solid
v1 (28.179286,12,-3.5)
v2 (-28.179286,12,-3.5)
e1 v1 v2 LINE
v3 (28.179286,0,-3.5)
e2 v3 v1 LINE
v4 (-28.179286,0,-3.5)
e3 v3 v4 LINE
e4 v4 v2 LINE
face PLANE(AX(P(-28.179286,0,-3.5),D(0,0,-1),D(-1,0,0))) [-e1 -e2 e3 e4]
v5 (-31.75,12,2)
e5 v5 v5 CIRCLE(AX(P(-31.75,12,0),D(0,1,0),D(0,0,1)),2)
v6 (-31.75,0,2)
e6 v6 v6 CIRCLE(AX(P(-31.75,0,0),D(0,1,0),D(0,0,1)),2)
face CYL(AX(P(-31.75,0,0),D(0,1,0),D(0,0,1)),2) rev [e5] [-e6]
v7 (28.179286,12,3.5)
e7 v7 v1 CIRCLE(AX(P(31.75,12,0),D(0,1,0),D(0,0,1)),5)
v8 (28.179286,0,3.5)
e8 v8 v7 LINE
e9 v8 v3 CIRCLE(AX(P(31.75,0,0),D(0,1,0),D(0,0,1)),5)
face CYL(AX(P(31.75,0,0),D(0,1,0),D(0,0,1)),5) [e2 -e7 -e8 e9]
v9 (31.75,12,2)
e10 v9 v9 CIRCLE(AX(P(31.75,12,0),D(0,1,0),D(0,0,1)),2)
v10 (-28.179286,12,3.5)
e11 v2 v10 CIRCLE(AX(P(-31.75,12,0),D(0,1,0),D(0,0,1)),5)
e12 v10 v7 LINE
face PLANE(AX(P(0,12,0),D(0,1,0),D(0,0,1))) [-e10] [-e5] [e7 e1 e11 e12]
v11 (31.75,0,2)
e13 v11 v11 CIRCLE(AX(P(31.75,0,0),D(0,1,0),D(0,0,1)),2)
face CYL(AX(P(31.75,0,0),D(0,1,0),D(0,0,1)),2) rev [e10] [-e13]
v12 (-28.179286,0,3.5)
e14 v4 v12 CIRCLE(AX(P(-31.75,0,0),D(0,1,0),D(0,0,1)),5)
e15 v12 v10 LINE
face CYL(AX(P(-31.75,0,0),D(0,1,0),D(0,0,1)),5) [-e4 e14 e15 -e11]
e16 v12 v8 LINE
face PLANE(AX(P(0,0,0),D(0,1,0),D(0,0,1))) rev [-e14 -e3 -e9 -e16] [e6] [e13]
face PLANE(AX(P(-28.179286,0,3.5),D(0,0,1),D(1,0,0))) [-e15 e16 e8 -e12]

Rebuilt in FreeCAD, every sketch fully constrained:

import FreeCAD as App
import Part
import Sketcher
from FreeCAD import Vector
Q = App.Units.Quantity

doc = App.newDocument("Part")
body = doc.addObject("PartDesign::Body", "Body")

sketch1 = doc.addObject("Sketcher::SketchObject", "Sketch")
body.addObject(sketch1)
sketch1.AttachmentSupport = (doc.XZ_Plane, [""])
sketch1.MapMode = "FlatFace"
sketch1.addGeometry(Part.LineSegment(Vector(-28, -2, 0), Vector(-28, 2, 0)), False)
sketch1.addGeometry(Part.LineSegment(Vector(-28, 2, 0), Vector(28, 2, 0)), False)
sketch1.addGeometry(Part.LineSegment(Vector(28, 2, 0), Vector(28, -2, 0)), False)
sketch1.addGeometry(Part.LineSegment(Vector(28, -2, 0), Vector(-28, -2, 0)), False)
sketch1.addConstraint(Sketcher.Constraint("Coincident", 0, 2, 1, 1))
sketch1.addConstraint(Sketcher.Constraint("Coincident", 1, 2, 2, 1))
sketch1.addConstraint(Sketcher.Constraint("Coincident", 2, 2, 3, 1))
sketch1.addConstraint(Sketcher.Constraint("Coincident", 3, 2, 0, 1))
sketch1.addConstraint(Sketcher.Constraint("Vertical", 0))
sketch1.addConstraint(Sketcher.Constraint("Horizontal", 1))
sketch1.addConstraint(Sketcher.Constraint("Vertical", 2))
sketch1.addConstraint(Sketcher.Constraint("Horizontal", 3))
sketch1.addConstraint(Sketcher.Constraint("Symmetric", 0, 2, 2, 2, -1, 1))
sketch1.addConstraint(Sketcher.Constraint("DistanceX", 1, 1, 1, 2, Q("56 mm")))
sketch1.addConstraint(Sketcher.Constraint("DistanceY", 0, 1, 0, 2, Q("5 mm")))
pad1 = doc.addObject("PartDesign::Pad", "Pad")
body.addObject(pad1)
pad1.Profile = sketch1
pad1.Length = 12
pad1.Reversed = True

sketch2 = doc.addObject("Sketcher::SketchObject", "Sketch001")
body.addObject(sketch2)
sketch2.AttachmentSupport = (doc.XZ_Plane, [""])
sketch2.MapMode = "FlatFace"
sketch2.AttachmentOffset = App.Placement(Vector(0, 0, -12), App.Rotation())
sketch2.addGeometry(Part.Circle(Vector(31.8, 0, 0), Vector(0, 0, 1), 4), False)
sketch2.addGeometry(Part.Circle(Vector(-31.8, 0, 0), Vector(0, 0, 1), 4), False)
sketch2.addConstraint(Sketcher.Constraint("Equal", 0, 1))
sketch2.addConstraint(Sketcher.Constraint("Symmetric", 0, 3, 1, 3, -1, 1))
sketch2.addConstraint(Sketcher.Constraint("PointOnObject", 0, 3, -1))
sketch2.addConstraint(Sketcher.Constraint("Diameter", 0, Q("8 mm")))
sketch2.addConstraint(Sketcher.Constraint("DistanceX", 1, 3, 0, 3, Q("63.5 mm")))
pad2 = doc.addObject("PartDesign::Pad", "Pad001")
body.addObject(pad2)
pad2.Profile = sketch2
pad2.Length = 12

sketch3 = doc.addObject("Sketcher::SketchObject", "Sketch002")
body.addObject(sketch3)
sketch3.AttachmentSupport = (doc.XZ_Plane, [""])
sketch3.MapMode = "FlatFace"
sketch3.AttachmentOffset = App.Placement(Vector(0, 0, -12), App.Rotation())
sketch3.addGeometry(Part.LineSegment(Vector(-31, -3, 0), Vector(-31, 3, 0)), False)
sketch3.addGeometry(Part.LineSegment(Vector(-31, 3, 0), Vector(31, 3, 0)), False)
sketch3.addGeometry(Part.LineSegment(Vector(31, 3, 0), Vector(31, -3, 0)), False)
sketch3.addGeometry(Part.LineSegment(Vector(31, -3, 0), Vector(-31, -3, 0)), False)
sketch3.addConstraint(Sketcher.Constraint("Coincident", 0, 2, 1, 1))
sketch3.addConstraint(Sketcher.Constraint("Coincident", 1, 2, 2, 1))
sketch3.addConstraint(Sketcher.Constraint("Coincident", 2, 2, 3, 1))
sketch3.addConstraint(Sketcher.Constraint("Coincident", 3, 2, 0, 1))
sketch3.addConstraint(Sketcher.Constraint("Vertical", 0))
sketch3.addConstraint(Sketcher.Constraint("Horizontal", 1))
sketch3.addConstraint(Sketcher.Constraint("Vertical", 2))
sketch3.addConstraint(Sketcher.Constraint("Horizontal", 3))
sketch3.addConstraint(Sketcher.Constraint("Symmetric", 0, 2, 2, 2, -1, 1))
sketch3.addConstraint(Sketcher.Constraint("DistanceY", 0, 1, 0, 2, Q("5.5 mm")))
sketch3.addConstraint(Sketcher.Constraint("DistanceX", 1, 1, 1, 2, Q("61.198456 mm")))
pad3 = doc.addObject("PartDesign::Pad", "Pad002")
body.addObject(pad3)
pad3.Profile = sketch3
pad3.Length = 12

sketch4 = doc.addObject("Sketcher::SketchObject", "Sketch003")
body.addObject(sketch4)
sketch4.AttachmentSupport = (doc.XZ_Plane, [""])
sketch4.MapMode = "FlatFace"
sketch4.AttachmentOffset = App.Placement(Vector(0, 0, -12), App.Rotation())
sketch4.addGeometry(Part.Circle(Vector(-31.8, 0, 0), Vector(0, 0, 1), 2), False)
sketch4.addGeometry(Part.Circle(Vector(31.8, 0, 0), Vector(0, 0, 1), 2), False)
sketch4.addConstraint(Sketcher.Constraint("Equal", 0, 1))
sketch4.addConstraint(Sketcher.Constraint("Symmetric", 0, 3, 1, 3, -1, 1))
sketch4.addConstraint(Sketcher.Constraint("PointOnObject", 0, 3, -1))
sketch4.addConstraint(Sketcher.Constraint("Diameter", 0, Q("4 mm")))
sketch4.addConstraint(Sketcher.Constraint("DistanceX", 0, 3, 1, 3, Q("63.5 mm")))
pocket1 = doc.addObject("PartDesign::Pocket", "Pocket")
body.addObject(pocket1)
pocket1.Profile = sketch4
pocket1.Length = 12
pocket1.Reversed = True

sketch5 = doc.addObject("Sketcher::SketchObject", "Sketch004")
body.addObject(sketch5)
sketch5.AttachmentSupport = (doc.XZ_Plane, [""])
sketch5.MapMode = "FlatFace"
sketch5.AttachmentOffset = App.Placement(Vector(0, 0, -12), App.Rotation())
sketch5.addGeometry(Part.Circle(Vector(-32, 0, 0), Vector(0, 0, 1), 5), False)
sketch5.addGeometry(Part.Circle(Vector(32, 0, 0), Vector(0, 0, 1), 5), False)
sketch5.addConstraint(Sketcher.Constraint("Equal", 0, 1))
sketch5.addConstraint(Sketcher.Constraint("Symmetric", 0, 3, 1, 3, -1, 1))
sketch5.addConstraint(Sketcher.Constraint("PointOnObject", 0, 3, -1))
sketch5.addConstraint(Sketcher.Constraint("Diameter", 0, Q("10 mm")))
sketch5.addConstraint(Sketcher.Constraint("DistanceX", 0, 3, 1, 3, Q("63.5 mm")))
pad4 = doc.addObject("PartDesign::Pad", "Pad003")
body.addObject(pad4)
pad4.Profile = sketch5
pad4.Length = 12

sketch6 = doc.addObject("Sketcher::SketchObject", "Sketch005")
body.addObject(sketch6)
sketch6.AttachmentSupport = (doc.XZ_Plane, [""])
sketch6.MapMode = "FlatFace"
sketch6.AttachmentOffset = App.Placement(Vector(0, 0, -12), App.Rotation())
sketch6.addGeometry(Part.LineSegment(Vector(-28, -4, 0), Vector(-28, 4, 0)), False)
sketch6.addGeometry(Part.LineSegment(Vector(-28, 4, 0), Vector(28, 4, 0)), False)
sketch6.addGeometry(Part.LineSegment(Vector(28, 4, 0), Vector(28, -4, 0)), False)
sketch6.addGeometry(Part.LineSegment(Vector(28, -4, 0), Vector(-28, -4, 0)), False)
sketch6.addConstraint(Sketcher.Constraint("Coincident", 0, 2, 1, 1))
sketch6.addConstraint(Sketcher.Constraint("Coincident", 1, 2, 2, 1))
sketch6.addConstraint(Sketcher.Constraint("Coincident", 2, 2, 3, 1))
sketch6.addConstraint(Sketcher.Constraint("Coincident", 3, 2, 0, 1))
sketch6.addConstraint(Sketcher.Constraint("Vertical", 0))
sketch6.addConstraint(Sketcher.Constraint("Horizontal", 1))
sketch6.addConstraint(Sketcher.Constraint("Vertical", 2))
sketch6.addConstraint(Sketcher.Constraint("Horizontal", 3))
sketch6.addConstraint(Sketcher.Constraint("Symmetric", 0, 2, 2, 2, -1, 1))
sketch6.addConstraint(Sketcher.Constraint("DistanceY", 0, 1, 0, 2, Q("7 mm")))
sketch6.addConstraint(Sketcher.Constraint("DistanceX", 1, 1, 1, 2, Q("56.358572 mm")))
pad5 = doc.addObject("PartDesign::Pad", "Pad004")
body.addObject(pad5)
pad5.Profile = sketch6
pad5.Length = 12

sketch7 = doc.addObject("Sketcher::SketchObject", "Sketch006")
body.addObject(sketch7)
sketch7.AttachmentSupport = (doc.XZ_Plane, [""])
sketch7.MapMode = "FlatFace"
sketch7.AttachmentOffset = App.Placement(Vector(0, 0, -12), App.Rotation())
sketch7.addGeometry(Part.Circle(Vector(31.8, 0, 0), Vector(0, 0, 1), 2), False)
sketch7.addGeometry(Part.Circle(Vector(-31.8, 0, 0), Vector(0, 0, 1), 2), False)
sketch7.addConstraint(Sketcher.Constraint("Equal", 0, 1))
sketch7.addConstraint(Sketcher.Constraint("Symmetric", 0, 3, 1, 3, -1, 1))
sketch7.addConstraint(Sketcher.Constraint("PointOnObject", 0, 3, -1))
sketch7.addConstraint(Sketcher.Constraint("Diameter", 0, Q("4 mm")))
sketch7.addConstraint(Sketcher.Constraint("DistanceX", 1, 3, 0, 3, Q("63.5 mm")))
pocket2 = doc.addObject("PartDesign::Pocket", "Pocket001")
body.addObject(pocket2)
pocket2.Profile = sketch7
pocket2.Length = 12
pocket2.Reversed = True

doc.recompute()
